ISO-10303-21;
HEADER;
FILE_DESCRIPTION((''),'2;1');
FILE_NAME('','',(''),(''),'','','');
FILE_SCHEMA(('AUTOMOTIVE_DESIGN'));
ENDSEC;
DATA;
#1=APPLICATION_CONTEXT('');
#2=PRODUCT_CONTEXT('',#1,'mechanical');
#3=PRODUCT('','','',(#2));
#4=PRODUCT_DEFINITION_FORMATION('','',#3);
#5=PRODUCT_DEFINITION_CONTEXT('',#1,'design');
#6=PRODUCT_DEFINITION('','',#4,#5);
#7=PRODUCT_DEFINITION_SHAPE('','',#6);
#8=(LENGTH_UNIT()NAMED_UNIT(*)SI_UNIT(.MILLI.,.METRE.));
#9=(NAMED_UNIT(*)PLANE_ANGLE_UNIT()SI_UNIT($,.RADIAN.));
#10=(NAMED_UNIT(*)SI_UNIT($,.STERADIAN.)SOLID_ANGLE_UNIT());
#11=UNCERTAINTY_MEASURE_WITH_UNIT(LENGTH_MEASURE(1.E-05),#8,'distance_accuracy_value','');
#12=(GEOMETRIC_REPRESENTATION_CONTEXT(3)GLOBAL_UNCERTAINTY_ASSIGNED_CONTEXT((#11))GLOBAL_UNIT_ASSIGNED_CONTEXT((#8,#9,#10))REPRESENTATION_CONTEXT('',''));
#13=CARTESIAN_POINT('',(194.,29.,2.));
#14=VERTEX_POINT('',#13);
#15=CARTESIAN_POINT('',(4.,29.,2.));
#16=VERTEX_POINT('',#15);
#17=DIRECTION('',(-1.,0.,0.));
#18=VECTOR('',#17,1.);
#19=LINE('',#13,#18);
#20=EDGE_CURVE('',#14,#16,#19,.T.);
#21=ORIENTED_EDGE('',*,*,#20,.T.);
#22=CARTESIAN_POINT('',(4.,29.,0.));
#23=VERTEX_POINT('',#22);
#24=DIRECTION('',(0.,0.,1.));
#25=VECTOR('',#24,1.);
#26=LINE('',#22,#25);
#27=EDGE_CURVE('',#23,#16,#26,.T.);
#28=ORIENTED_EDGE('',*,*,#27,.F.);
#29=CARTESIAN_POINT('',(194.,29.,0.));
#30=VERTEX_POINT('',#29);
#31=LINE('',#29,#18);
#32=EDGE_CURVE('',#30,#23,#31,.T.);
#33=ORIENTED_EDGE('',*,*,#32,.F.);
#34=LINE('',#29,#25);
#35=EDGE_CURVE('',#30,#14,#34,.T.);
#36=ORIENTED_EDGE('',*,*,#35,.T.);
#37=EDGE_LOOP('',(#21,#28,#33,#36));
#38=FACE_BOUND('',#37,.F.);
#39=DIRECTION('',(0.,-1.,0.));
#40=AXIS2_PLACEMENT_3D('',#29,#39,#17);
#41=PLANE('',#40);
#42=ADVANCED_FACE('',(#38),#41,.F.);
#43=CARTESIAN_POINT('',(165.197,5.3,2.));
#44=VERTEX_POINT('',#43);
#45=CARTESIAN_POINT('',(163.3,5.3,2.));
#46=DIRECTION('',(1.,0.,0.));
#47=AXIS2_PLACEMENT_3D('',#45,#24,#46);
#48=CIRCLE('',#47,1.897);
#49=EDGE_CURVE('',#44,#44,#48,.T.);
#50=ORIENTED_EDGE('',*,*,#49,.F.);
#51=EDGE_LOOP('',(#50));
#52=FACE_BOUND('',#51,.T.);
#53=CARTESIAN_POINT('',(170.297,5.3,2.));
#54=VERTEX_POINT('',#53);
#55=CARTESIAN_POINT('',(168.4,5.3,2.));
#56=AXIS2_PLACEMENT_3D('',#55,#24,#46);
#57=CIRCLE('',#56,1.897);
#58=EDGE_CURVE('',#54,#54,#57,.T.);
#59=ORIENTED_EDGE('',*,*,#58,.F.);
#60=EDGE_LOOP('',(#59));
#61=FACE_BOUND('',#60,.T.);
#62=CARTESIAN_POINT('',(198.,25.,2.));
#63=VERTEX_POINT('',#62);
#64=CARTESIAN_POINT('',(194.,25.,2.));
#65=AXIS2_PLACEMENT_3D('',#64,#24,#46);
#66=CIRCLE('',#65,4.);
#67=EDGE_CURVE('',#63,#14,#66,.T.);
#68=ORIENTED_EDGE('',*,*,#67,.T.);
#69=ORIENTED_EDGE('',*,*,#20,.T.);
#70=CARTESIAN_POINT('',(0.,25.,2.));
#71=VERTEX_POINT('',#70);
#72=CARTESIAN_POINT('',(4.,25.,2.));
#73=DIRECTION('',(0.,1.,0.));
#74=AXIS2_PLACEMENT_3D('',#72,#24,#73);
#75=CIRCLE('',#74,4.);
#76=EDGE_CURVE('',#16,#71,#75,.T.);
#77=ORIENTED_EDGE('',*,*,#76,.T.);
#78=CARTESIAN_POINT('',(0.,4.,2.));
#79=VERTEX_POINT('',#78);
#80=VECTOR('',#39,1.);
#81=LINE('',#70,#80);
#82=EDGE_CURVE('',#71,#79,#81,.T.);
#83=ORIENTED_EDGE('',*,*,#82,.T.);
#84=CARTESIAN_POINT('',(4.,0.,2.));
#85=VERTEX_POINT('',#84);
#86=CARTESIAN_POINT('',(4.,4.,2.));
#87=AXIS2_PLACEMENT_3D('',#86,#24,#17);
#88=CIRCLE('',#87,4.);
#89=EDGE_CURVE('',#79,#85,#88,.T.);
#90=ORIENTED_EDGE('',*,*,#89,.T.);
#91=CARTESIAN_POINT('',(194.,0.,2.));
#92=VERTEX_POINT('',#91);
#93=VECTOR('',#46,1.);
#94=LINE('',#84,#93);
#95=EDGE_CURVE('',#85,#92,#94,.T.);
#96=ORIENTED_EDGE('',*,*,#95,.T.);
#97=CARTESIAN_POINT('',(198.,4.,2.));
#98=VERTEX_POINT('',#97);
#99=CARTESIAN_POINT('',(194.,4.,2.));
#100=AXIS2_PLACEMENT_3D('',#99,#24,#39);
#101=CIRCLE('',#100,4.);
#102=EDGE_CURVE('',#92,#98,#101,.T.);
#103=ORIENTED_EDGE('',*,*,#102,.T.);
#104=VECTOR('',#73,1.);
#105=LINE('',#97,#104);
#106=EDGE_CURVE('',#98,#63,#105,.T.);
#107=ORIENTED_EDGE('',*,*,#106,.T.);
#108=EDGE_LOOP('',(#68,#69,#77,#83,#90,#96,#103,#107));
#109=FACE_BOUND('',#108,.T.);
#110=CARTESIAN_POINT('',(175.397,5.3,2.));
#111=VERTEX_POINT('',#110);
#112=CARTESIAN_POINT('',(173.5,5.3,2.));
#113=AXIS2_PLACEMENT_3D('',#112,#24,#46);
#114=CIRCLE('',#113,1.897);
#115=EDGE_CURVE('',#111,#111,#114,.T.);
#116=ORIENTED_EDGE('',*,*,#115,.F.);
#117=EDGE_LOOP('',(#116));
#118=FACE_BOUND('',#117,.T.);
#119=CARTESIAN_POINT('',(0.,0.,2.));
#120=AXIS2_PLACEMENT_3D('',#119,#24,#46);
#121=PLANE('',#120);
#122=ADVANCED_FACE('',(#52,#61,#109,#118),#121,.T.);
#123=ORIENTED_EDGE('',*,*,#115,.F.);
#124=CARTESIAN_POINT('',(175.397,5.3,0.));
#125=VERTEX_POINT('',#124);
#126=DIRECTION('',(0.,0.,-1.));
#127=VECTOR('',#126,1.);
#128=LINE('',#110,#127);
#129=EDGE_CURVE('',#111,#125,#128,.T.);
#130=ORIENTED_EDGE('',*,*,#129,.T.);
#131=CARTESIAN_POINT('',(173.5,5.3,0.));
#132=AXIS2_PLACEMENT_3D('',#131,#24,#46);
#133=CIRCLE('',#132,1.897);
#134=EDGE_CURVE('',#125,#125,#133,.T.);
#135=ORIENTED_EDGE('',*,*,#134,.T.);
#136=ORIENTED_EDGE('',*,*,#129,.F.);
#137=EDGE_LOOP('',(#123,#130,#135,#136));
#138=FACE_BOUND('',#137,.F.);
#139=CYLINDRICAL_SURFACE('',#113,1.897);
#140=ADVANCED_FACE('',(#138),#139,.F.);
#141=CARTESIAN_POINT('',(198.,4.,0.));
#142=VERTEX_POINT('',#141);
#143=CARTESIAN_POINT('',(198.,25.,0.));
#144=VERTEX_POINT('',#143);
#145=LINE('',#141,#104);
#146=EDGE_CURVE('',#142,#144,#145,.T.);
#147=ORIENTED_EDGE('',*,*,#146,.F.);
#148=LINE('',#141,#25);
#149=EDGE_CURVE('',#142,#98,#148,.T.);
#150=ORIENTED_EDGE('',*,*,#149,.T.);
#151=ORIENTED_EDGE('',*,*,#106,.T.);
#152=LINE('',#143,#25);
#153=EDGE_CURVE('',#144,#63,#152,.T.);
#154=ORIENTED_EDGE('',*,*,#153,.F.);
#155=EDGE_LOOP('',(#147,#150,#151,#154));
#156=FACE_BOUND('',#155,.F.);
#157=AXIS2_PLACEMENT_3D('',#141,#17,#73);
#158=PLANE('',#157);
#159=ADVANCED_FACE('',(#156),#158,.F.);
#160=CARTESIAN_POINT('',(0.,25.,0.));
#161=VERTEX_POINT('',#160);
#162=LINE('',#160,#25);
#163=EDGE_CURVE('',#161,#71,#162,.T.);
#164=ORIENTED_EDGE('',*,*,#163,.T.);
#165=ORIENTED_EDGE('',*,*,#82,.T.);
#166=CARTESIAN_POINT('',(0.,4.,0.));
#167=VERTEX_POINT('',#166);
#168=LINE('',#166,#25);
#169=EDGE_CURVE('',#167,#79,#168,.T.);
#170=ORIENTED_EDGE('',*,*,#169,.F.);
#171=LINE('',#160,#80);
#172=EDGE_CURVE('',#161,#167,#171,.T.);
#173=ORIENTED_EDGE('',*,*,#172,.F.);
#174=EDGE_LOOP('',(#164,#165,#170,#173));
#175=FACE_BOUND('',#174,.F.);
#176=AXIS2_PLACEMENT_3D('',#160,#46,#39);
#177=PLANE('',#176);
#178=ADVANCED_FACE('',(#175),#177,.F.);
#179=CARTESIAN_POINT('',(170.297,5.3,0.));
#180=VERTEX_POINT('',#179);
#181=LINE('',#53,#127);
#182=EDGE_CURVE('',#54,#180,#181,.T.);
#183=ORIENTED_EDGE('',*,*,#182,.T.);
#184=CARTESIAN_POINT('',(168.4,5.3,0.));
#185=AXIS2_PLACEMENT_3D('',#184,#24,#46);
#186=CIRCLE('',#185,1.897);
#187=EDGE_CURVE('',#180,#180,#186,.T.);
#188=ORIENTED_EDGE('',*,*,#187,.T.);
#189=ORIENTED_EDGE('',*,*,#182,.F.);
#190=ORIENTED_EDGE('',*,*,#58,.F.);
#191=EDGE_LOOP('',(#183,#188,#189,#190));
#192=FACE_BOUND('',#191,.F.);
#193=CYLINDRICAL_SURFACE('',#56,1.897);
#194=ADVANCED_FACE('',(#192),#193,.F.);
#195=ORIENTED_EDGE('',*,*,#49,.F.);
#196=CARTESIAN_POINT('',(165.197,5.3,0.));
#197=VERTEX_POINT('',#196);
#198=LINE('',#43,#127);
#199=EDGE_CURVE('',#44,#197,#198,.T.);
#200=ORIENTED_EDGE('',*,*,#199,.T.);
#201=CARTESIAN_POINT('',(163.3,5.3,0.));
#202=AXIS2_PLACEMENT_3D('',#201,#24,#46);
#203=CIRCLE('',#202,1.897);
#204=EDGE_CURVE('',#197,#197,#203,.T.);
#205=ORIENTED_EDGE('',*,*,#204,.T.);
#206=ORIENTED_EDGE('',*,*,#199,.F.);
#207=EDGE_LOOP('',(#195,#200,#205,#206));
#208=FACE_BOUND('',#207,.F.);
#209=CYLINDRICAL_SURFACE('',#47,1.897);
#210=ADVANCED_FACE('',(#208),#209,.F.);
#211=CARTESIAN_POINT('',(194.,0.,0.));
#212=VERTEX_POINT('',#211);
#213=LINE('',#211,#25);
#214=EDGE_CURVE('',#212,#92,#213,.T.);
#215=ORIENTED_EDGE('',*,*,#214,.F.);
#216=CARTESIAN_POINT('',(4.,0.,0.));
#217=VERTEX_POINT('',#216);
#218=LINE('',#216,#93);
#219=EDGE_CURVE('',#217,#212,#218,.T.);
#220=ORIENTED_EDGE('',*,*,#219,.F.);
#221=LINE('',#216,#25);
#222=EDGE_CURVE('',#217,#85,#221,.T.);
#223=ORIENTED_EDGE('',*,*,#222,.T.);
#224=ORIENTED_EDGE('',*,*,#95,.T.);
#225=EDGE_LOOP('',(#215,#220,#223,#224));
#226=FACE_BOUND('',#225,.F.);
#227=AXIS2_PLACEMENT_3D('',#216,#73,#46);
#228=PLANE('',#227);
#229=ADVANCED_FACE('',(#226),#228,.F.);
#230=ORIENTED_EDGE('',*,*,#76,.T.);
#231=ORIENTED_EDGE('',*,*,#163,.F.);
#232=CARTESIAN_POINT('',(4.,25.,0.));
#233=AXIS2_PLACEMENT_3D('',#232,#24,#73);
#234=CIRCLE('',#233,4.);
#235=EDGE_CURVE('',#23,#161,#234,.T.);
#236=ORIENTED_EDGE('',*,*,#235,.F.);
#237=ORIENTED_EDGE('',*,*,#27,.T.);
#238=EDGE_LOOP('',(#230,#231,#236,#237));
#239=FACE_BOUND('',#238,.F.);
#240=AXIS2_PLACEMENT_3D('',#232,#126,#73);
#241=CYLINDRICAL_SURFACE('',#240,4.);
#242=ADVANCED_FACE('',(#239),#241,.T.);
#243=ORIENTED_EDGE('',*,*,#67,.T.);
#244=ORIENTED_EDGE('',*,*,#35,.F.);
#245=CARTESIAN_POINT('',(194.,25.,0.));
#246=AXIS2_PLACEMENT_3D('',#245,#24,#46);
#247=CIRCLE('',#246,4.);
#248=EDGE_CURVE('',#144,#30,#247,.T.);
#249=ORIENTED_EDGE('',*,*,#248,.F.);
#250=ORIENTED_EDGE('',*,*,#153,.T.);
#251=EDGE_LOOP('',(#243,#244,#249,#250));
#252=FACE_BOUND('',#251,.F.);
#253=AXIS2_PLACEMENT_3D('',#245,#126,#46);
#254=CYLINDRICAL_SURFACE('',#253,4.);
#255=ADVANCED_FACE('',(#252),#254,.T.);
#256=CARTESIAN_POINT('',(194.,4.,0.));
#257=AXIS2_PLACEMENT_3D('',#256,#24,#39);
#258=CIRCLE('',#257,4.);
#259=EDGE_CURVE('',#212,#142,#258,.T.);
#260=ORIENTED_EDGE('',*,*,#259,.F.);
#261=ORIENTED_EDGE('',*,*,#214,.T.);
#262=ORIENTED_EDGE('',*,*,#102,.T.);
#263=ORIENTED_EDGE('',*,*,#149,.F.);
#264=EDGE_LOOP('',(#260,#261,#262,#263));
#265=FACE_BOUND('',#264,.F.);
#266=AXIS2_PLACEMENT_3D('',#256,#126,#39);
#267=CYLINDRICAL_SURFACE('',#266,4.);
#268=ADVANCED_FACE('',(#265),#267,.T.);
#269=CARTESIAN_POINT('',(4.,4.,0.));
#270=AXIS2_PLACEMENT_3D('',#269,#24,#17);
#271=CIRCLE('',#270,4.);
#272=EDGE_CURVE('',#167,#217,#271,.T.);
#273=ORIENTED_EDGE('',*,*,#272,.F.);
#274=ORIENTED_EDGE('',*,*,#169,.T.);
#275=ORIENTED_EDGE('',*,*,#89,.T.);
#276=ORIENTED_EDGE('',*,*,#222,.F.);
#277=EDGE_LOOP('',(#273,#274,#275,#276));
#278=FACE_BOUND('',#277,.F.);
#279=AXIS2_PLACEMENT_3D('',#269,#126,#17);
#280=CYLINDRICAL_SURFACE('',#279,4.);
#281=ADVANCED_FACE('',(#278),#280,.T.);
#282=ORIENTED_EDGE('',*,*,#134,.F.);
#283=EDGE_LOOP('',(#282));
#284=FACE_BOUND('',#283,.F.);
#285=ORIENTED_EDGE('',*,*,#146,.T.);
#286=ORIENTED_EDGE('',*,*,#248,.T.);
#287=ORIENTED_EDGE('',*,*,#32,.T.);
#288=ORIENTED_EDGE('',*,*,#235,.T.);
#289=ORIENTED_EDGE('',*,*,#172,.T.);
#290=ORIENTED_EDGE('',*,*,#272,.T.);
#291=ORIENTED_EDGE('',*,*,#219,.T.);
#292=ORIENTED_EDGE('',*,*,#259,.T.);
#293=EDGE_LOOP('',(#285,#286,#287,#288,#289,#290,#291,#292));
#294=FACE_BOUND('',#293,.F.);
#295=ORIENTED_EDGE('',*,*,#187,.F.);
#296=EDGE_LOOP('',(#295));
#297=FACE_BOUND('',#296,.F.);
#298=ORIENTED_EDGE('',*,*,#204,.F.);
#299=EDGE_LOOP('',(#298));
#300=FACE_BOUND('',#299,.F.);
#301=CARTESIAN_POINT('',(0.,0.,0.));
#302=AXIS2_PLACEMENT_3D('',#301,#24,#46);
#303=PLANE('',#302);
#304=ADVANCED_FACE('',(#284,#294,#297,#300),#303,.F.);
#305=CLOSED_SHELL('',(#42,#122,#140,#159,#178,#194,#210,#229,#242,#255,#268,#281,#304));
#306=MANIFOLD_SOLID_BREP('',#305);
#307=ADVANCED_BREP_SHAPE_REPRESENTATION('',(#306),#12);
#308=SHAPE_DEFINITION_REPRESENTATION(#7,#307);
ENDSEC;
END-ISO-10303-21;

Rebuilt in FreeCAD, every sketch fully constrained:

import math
import FreeCAD as App
import Part
import Sketcher

V = App.Vector

doc = App.newDocument("Part")
body = doc.addObject("PartDesign::Body", "Body")

# Sketch on XY plane
sketch1 = body.newObject("Sketcher::SketchObject", "Sketch")
sketch1.AttachmentSupport = (doc.getObject("XY_Plane"), [""])
sketch1.MapMode = "FlatFace"
sketch1.addGeometry([
    Part.ArcOfCircle(Part.Circle(V(4, 4, 0), V(0, 0, 1), 4), math.radians(180), math.radians(270)),  # 0
    Part.LineSegment(V(4, 0, 0), V(194, 0, 0)),  # 1
    Part.ArcOfCircle(Part.Circle(V(194, 4, 0), V(0, 0, 1), 4), math.radians(-90), math.radians(0)),  # 2
    Part.LineSegment(V(198, 4, 0), V(198, 25, 0)),  # 3
    Part.ArcOfCircle(Part.Circle(V(194, 25, 0), V(0, 0, 1), 4), math.radians(0), math.radians(90)),  # 4
    Part.LineSegment(V(194, 29, 0), V(4, 29, 0)),  # 5
    Part.ArcOfCircle(Part.Circle(V(4, 25, 0), V(0, 0, 1), 4), math.radians(90), math.radians(180)),  # 6
    Part.LineSegment(V(0, 25, 0), V(0, 4, 0)),  # 7
], False)
sketch1.addConstraint([
    Sketcher.Constraint("Tangent", 0, 2, 1, 1),
    Sketcher.Constraint("Tangent", 1, 2, 2, 1),
    Sketcher.Constraint("Tangent", 2, 2, 3, 1),
    Sketcher.Constraint("Tangent", 3, 2, 4, 1),
    Sketcher.Constraint("Tangent", 4, 2, 5, 1),
    Sketcher.Constraint("Tangent", 5, 2, 6, 1),
    Sketcher.Constraint("Tangent", 6, 2, 7, 1),
    Sketcher.Constraint("Tangent", 7, 2, 0, 1),
    Sketcher.Constraint("Horizontal", 1),
    Sketcher.Constraint("Vertical", 3),
    Sketcher.Constraint("Horizontal", 5),
    Sketcher.Constraint("Vertical", 7),
    Sketcher.Constraint("Equal", 0, 2),
    Sketcher.Constraint("Equal", 2, 4),
    Sketcher.Constraint("Equal", 4, 6),
    Sketcher.Constraint("PointOnObject", 0, 2, -1),
    Sketcher.Constraint("PointOnObject", 6, 2, -2),
    Sketcher.Constraint("Radius", 0, 4.0),
    Sketcher.Constraint("DistanceX", -1, 1, 2, 2, 198.0),
    Sketcher.Constraint("DistanceY", -1, 1, 4, 2, 29.0),
])
pad1 = body.newObject("PartDesign::Pad", "Pad")
pad1.Profile = sketch1
pad1.Length = 2

# Sketch on XY plane
sketch2 = body.newObject("Sketcher::SketchObject", "Sketch001")
sketch2.AttachmentSupport = (doc.getObject("XY_Plane"), [""])
sketch2.MapMode = "FlatFace"
sketch2.AttachmentOffset = App.Placement(V(0, 0, 2), App.Rotation())
sketch2.addGeometry([
    Part.Circle(V(163.3, 5.3, 0), V(0, 0, 1), 1.9),
    Part.Circle(V(168.4, 5.3, 0), V(0, 0, 1), 1.9),
    Part.Circle(V(173.5, 5.3, 0), V(0, 0, 1), 1.9),
], False)
sketch2.addConstraint([
    Sketcher.Constraint("Equal", 0, 1),
    Sketcher.Constraint("Equal", 1, 2),
    Sketcher.Constraint("Horizontal", 0, 3, 1, 3),
    Sketcher.Constraint("Horizontal", 1, 3, 2, 3),
    Sketcher.Constraint("Diameter", 0, 3.794),
    Sketcher.Constraint("DistanceY", -1, 1, 0, 3, 5.3),
    Sketcher.Constraint("DistanceX", 0, 3, 1, 3, 5.1),
    Sketcher.Constraint("DistanceX", 1, 3, 2, 3, 5.1),
    Sketcher.Constraint("DistanceX", -1, 1, 0, 3, 163.3),
])
pocket1 = body.newObject("PartDesign::Pocket", "Pocket")
pocket1.Profile = sketch2
pocket1.Type = "ThroughAll"

doc.recompute()
